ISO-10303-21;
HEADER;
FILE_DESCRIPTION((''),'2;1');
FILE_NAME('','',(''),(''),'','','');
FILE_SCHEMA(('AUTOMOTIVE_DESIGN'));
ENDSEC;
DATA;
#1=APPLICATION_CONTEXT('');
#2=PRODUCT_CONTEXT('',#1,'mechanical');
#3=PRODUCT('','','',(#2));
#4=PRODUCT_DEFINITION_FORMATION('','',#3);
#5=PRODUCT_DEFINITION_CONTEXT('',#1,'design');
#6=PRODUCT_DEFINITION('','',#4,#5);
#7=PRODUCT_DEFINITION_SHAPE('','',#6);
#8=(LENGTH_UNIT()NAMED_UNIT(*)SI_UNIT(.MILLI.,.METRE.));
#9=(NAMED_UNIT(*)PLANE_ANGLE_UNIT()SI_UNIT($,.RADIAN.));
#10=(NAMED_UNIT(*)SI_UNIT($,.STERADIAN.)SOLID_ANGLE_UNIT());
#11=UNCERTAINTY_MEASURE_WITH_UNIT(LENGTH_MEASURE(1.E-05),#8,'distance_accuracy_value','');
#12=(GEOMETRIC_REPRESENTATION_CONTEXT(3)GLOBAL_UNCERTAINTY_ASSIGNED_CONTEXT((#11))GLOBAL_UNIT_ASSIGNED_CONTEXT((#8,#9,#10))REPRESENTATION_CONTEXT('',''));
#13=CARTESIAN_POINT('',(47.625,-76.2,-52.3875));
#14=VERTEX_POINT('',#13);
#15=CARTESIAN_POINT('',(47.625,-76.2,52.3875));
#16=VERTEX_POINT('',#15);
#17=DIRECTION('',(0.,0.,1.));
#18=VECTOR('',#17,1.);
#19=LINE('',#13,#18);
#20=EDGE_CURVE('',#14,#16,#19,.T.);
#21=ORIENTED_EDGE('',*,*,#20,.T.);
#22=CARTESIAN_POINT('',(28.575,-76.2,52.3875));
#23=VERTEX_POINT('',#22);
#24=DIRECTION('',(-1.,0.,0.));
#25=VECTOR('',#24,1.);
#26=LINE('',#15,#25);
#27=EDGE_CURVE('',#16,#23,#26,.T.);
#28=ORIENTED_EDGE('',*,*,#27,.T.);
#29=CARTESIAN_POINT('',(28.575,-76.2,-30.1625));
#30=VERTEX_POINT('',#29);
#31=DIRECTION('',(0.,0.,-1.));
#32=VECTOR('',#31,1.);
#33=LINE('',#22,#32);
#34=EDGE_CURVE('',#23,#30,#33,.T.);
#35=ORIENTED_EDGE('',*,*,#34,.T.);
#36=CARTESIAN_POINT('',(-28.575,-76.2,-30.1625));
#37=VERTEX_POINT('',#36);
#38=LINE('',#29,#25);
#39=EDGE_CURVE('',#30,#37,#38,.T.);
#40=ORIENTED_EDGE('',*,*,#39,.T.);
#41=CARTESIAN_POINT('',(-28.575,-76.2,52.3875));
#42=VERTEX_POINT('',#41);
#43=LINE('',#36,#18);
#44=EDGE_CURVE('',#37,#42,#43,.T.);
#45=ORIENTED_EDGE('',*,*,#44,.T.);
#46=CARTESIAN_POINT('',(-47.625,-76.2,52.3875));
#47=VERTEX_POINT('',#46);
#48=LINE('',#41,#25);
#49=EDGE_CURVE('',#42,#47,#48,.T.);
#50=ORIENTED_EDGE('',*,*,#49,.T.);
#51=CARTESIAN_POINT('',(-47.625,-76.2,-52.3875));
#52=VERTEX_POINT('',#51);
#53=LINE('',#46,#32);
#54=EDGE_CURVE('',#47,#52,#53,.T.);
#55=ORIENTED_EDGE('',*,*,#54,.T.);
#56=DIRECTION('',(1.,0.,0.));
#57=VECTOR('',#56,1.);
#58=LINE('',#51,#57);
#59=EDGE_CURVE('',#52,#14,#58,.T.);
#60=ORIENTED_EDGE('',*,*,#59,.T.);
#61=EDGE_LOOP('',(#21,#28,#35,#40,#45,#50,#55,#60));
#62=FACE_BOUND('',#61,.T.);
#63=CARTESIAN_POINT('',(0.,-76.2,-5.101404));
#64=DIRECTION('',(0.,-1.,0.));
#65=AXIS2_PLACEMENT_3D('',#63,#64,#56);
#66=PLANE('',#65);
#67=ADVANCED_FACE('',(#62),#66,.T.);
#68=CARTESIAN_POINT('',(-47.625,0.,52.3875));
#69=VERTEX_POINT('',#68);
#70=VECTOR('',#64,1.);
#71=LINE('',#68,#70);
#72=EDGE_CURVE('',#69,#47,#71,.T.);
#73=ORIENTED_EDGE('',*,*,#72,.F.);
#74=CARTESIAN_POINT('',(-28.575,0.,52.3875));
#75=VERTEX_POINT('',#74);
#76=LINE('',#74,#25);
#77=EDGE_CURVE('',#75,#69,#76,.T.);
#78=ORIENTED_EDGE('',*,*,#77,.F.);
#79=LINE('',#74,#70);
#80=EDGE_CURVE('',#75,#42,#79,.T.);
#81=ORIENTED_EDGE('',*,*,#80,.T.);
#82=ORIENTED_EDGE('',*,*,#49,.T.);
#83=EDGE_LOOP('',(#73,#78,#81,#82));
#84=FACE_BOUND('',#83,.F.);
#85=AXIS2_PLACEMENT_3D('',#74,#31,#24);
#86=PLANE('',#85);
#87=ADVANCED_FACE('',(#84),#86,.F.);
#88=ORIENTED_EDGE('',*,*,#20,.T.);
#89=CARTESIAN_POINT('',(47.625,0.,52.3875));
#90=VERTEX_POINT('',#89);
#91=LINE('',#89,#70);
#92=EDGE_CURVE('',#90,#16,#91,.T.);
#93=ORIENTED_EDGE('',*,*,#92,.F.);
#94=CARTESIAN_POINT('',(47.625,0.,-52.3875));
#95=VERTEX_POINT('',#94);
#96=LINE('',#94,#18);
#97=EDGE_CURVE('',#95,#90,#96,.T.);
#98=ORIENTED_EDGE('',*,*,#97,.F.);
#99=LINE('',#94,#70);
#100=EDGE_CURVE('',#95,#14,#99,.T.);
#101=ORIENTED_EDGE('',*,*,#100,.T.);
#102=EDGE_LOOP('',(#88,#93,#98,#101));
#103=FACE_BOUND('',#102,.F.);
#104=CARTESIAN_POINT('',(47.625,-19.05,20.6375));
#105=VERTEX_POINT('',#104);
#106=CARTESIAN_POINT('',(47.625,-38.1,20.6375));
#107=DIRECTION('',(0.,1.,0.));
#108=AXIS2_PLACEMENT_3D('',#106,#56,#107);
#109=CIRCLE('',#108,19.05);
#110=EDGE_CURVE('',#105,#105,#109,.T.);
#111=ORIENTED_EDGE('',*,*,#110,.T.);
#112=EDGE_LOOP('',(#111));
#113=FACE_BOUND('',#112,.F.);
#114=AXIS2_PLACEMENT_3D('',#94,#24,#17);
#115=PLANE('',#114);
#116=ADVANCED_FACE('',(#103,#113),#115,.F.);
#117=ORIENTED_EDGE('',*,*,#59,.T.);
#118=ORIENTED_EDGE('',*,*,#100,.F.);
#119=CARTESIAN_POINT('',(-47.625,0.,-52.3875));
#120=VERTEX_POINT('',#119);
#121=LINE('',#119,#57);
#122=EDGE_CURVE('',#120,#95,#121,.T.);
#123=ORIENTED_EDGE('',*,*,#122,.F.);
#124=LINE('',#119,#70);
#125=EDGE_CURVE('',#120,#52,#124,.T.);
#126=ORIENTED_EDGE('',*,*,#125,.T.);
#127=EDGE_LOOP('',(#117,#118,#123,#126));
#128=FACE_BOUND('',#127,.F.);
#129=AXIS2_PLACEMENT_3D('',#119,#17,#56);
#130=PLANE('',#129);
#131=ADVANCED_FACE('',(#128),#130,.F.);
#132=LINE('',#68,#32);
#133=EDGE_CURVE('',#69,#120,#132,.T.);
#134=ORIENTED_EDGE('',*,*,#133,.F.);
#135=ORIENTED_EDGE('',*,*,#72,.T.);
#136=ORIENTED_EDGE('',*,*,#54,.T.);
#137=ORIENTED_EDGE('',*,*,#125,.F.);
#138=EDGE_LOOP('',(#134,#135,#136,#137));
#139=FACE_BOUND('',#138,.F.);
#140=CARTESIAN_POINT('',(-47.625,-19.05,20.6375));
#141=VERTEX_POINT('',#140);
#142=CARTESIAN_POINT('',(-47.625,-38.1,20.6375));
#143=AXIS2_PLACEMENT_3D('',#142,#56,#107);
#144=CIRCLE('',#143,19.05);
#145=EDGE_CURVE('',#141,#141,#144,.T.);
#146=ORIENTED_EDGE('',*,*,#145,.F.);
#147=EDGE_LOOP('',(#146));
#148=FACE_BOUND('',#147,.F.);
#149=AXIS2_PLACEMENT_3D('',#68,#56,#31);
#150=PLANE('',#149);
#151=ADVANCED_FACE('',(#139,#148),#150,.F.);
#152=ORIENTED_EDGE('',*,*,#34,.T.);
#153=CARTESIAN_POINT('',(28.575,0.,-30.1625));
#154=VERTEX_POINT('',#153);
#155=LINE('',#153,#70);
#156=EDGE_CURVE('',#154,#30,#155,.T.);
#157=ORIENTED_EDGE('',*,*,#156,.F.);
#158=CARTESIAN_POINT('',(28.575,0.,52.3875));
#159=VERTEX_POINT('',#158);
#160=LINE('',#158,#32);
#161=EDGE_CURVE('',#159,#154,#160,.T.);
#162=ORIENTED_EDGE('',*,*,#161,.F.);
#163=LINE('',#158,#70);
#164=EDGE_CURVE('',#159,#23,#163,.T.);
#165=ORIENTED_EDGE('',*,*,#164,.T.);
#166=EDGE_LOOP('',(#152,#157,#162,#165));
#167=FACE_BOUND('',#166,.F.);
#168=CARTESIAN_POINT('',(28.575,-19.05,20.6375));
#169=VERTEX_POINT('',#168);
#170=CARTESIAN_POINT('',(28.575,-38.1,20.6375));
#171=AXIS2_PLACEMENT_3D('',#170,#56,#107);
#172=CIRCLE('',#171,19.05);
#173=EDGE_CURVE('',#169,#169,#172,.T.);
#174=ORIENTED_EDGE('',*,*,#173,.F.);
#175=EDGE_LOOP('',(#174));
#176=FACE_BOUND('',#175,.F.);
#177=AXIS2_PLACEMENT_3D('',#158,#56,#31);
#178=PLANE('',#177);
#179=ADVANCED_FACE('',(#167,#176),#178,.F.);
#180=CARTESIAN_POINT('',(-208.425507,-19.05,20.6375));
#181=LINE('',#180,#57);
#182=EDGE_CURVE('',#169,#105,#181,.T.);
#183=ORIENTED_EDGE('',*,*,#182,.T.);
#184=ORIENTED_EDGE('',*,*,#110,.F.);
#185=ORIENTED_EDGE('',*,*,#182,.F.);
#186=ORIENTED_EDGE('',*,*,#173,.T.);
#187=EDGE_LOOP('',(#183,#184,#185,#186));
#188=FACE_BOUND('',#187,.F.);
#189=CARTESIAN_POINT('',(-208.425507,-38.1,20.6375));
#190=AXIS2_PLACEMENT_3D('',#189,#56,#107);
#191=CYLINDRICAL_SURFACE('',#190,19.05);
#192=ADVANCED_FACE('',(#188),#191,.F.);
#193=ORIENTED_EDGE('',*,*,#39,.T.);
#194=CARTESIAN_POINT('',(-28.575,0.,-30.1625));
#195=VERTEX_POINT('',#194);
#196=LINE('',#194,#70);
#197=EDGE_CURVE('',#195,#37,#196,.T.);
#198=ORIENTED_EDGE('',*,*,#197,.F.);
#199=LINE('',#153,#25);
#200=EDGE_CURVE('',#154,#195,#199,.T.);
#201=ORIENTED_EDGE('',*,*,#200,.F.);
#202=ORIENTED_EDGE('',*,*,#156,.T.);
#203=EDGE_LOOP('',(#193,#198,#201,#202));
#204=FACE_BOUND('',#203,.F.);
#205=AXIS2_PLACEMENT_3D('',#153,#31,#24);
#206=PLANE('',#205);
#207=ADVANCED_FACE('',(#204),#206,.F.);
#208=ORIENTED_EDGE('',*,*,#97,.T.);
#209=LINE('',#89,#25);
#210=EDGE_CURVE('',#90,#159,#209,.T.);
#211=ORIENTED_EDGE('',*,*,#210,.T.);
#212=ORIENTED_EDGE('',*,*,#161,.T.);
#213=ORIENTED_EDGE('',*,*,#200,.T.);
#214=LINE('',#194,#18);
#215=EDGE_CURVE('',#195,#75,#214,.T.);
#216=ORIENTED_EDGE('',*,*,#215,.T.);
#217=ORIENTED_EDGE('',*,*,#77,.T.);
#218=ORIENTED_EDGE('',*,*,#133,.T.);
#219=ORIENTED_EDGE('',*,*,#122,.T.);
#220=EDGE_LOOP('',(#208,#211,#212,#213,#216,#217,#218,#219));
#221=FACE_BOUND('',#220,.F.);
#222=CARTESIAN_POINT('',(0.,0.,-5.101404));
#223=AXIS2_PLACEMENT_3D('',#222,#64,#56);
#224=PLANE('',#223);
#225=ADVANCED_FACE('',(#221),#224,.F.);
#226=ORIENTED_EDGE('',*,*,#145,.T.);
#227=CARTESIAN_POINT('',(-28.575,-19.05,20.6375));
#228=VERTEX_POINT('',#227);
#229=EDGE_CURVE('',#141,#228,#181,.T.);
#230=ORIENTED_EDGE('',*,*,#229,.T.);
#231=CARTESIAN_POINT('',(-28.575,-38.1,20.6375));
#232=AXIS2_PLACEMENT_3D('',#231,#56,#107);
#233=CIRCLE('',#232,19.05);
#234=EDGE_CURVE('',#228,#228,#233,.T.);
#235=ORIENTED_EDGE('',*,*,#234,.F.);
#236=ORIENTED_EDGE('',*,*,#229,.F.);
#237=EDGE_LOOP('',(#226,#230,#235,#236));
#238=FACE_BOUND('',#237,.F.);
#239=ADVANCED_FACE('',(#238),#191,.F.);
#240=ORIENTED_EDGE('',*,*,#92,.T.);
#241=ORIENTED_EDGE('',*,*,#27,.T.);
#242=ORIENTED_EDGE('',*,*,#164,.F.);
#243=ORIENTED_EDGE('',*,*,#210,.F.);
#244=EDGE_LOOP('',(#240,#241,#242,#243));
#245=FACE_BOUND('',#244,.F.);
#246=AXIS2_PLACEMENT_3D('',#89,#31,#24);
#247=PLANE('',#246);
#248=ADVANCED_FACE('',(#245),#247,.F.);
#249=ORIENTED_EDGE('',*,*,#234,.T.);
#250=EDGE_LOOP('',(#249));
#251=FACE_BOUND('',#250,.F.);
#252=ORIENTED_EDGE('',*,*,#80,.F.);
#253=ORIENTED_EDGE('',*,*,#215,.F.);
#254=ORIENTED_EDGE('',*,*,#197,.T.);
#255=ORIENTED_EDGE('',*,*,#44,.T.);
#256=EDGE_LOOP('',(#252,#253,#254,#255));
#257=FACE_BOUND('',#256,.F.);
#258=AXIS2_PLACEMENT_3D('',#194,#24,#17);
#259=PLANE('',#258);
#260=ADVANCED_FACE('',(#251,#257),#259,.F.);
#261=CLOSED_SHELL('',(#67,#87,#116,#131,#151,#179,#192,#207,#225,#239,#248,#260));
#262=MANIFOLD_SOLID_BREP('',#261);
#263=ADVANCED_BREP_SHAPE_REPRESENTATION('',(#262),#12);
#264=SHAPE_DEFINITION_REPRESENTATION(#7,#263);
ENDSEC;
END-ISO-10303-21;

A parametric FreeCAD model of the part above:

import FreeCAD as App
import Part
import Sketcher

V = App.Vector
Q = App.Units.Quantity

doc = App.newDocument("Part")
body = doc.addObject("PartDesign::Body", "Body")

sketch1 = doc.addObject("Sketcher::SketchObject", "Sketch")
body.addObject(sketch1)
sketch1.AttachmentSupport = (doc.XZ_Plane, [""])
sketch1.MapMode = "FlatFace"
sketch1.addGeometry(Part.LineSegment(V(-48, 52, 0), V(-48, -52, 0)), False)
sketch1.addGeometry(Part.LineSegment(V(-48, -52, 0), V(48, -52, 0)), False)
sketch1.addGeometry(Part.LineSegment(V(48, -52, 0), V(48, 52, 0)), False)
sketch1.addGeometry(Part.LineSegment(V(48, 52, 0), V(29, 52, 0)), False)
sketch1.addGeometry(Part.LineSegment(V(29, 52, 0), V(29, -30, 0)), False)
sketch1.addGeometry(Part.LineSegment(V(29, -30, 0), V(-29, -30, 0)), False)
sketch1.addGeometry(Part.LineSegment(V(-29, -30, 0), V(-29, 52, 0)), False)
sketch1.addGeometry(Part.LineSegment(V(-29, 52, 0), V(-48, 52, 0)), False)
sketch1.addConstraint(Sketcher.Constraint("Coincident", 0, 2, 1, 1))
sketch1.addConstraint(Sketcher.Constraint("Coincident", 1, 2, 2, 1))
sketch1.addConstraint(Sketcher.Constraint("Coincident", 2, 2, 3, 1))
sketch1.addConstraint(Sketcher.Constraint("Coincident", 3, 2, 4, 1))
sketch1.addConstraint(Sketcher.Constraint("Coincident", 4, 2, 5, 1))
sketch1.addConstraint(Sketcher.Constraint("Coincident", 5, 2, 6, 1))
sketch1.addConstraint(Sketcher.Constraint("Coincident", 6, 2, 7, 1))
sketch1.addConstraint(Sketcher.Constraint("Coincident", 7, 2, 0, 1))
sketch1.addConstraint(Sketcher.Constraint("Vertical", 0))
sketch1.addConstraint(Sketcher.Constraint("Horizontal", 1))
sketch1.addConstraint(Sketcher.Constraint("Vertical", 2))
sketch1.addConstraint(Sketcher.Constraint("Horizontal", 3))
sketch1.addConstraint(Sketcher.Constraint("Vertical", 4))
sketch1.addConstraint(Sketcher.Constraint("Horizontal", 5))
sketch1.addConstraint(Sketcher.Constraint("Vertical", 6))
sketch1.addConstraint(Sketcher.Constraint("Horizontal", 7))
sketch1.addConstraint(Sketcher.Constraint("Symmetric", 0, 2, 2, 2, -1, 1))
sketch1.addConstraint(Sketcher.Constraint("Symmetric", 3, 2, 6, 2, -2))
sketch1.addConstraint(Sketcher.Constraint("DistanceX", 0, 2, 3, 2, Q("3 in")))
sketch1.addConstraint(Sketcher.Constraint("DistanceX", 1, 1, 1, 2, Q("3.75 in")))
sketch1.addConstraint(Sketcher.Constraint("DistanceY", 4, 2, 4, 1, Q("3.25 in")))
sketch1.addConstraint(Sketcher.Constraint("DistanceY", 0, 2, 0, 1, Q("4.125 in")))
pad1 = doc.addObject("PartDesign::Pad", "Pad")
body.addObject(pad1)
pad1.Profile = sketch1
pad1.Length = Q("3 in")

sketch2 = doc.addObject("Sketcher::SketchObject", "Sketch001")
body.addObject(sketch2)
sketch2.AttachmentSupport = (doc.YZ_Plane, [""])
sketch2.MapMode = "FlatFace"
sketch2.AttachmentOffset = App.Placement(V(0, 0, -1.875 * 25.4), App.Rotation())
sketch2.addGeometry(Part.Circle(V(-38, 21, 0), V(0, 0, 1), 19), False)
sketch2.addConstraint(Sketcher.Constraint("Diameter", 0, Q("1.5 in")))
sketch2.addConstraint(Sketcher.Constraint("DistanceX", 0, 3, -1, 1, Q("1.5 in")))
sketch2.addConstraint(Sketcher.Constraint("DistanceY", -1, 1, 0, 3, Q("0.8125 in")))
doc.recompute()
hole = doc.addObject("PartDesign::Hole", "Hole")
body.addObject(hole)
hole.Profile = sketch2
hole.ThreadType = "None"
hole.Diameter = Q("1.5 in")
hole.DepthType = "ThroughAll"
hole.Reversed = True

doc.recompute()
